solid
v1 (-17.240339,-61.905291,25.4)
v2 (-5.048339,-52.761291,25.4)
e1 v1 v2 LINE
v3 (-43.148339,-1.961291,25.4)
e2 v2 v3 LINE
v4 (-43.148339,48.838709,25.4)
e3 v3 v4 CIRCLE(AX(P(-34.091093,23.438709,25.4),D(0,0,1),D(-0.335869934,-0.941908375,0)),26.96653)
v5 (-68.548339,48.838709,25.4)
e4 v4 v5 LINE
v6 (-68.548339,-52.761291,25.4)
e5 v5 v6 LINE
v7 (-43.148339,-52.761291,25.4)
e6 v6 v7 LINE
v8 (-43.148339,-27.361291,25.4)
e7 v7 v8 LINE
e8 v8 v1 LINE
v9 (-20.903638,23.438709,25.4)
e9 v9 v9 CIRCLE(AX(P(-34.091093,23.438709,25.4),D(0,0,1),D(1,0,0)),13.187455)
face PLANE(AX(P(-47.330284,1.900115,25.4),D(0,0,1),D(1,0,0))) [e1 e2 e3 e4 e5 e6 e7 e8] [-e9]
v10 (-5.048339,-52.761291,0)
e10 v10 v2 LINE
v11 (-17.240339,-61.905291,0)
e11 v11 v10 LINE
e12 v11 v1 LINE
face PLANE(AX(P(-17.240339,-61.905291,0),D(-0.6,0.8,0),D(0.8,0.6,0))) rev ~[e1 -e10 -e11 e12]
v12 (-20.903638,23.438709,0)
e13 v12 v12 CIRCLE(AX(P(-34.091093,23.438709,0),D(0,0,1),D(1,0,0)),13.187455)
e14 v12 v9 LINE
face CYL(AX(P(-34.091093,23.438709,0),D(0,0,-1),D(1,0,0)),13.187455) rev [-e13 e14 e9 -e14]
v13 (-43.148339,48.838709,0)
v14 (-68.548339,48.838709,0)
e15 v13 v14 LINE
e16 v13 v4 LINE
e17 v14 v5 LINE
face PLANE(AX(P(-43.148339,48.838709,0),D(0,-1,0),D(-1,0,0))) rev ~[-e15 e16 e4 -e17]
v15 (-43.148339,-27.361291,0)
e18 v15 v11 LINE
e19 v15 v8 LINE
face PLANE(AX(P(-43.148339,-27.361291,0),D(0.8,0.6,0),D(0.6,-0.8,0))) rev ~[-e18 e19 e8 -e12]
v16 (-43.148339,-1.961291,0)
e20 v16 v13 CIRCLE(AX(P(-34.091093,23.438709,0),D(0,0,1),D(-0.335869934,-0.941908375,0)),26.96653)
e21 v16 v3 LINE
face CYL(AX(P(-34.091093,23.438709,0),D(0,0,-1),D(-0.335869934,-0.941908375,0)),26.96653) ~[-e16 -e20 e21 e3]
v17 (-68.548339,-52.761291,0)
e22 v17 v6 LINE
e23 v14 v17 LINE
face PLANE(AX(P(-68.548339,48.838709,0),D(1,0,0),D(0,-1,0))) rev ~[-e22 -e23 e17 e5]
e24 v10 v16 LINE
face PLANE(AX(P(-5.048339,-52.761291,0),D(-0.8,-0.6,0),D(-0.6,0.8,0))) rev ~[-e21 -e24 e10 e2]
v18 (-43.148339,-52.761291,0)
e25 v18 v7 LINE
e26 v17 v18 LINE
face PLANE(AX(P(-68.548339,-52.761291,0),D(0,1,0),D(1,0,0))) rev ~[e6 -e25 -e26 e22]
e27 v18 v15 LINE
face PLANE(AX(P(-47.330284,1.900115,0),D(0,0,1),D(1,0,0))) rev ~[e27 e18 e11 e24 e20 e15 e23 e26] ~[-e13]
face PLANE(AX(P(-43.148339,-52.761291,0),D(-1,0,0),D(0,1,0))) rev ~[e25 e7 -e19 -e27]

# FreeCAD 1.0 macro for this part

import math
import FreeCAD as App
import Part
import Sketcher

V = App.Vector
Q = App.Units.Quantity

doc = App.newDocument("Part")
body = doc.addObject("PartDesign::Body", "Body")

# Sketch on XY plane
sketch1 = doc.addObject("Sketcher::SketchObject", "Sketch")
body.addObject(sketch1)
sketch1.AttachmentSupport = (doc.XY_Plane, [""])
sketch1.MapMode = "FlatFace"
sketch1.addGeometry(Part.LineSegment(V(-68.548339, -52.761291, 0), V(-43.148339, -52.761291, 0)), False)
sketch1.addGeometry(Part.LineSegment(V(-43.148339, -52.761291, 0), V(-43.148339, -27.361291, 0)), False)
sketch1.addGeometry(Part.LineSegment(V(-43.148339, -27.361291, 0), V(-17.240339, -61.905291, 0)), False)
sketch1.addGeometry(Part.LineSegment(V(-17.240339, -61.905291, 0), V(-5.048339, -52.761291, 0)), False)
sketch1.addGeometry(Part.LineSegment(V(-5.048339, -52.761291, 0), V(-43.148339, -1.961291, 0)), False)
sketch1.addGeometry(Part.ArcOfCircle(Part.Circle(V(-34.091093, 23.438709, 0), V(0, 0, 1), 26.96653), math.radians(-109.625447), math.radians(109.625447)), False)
sketch1.addGeometry(Part.LineSegment(V(-43.148339, 48.838709, 0), V(-68.548339, 48.838709, 0)), False)
sketch1.addGeometry(Part.LineSegment(V(-68.548339, 48.838709, 0), V(-68.548339, -52.761291, 0)), False)
sketch1.addGeometry(Part.Circle(V(-34.091093, 23.438709, 0), V(0, 0, 1), 13.187455), False)
sketch1.addConstraint(Sketcher.Constraint("Coincident", 0, 2, 1, 1))
sketch1.addConstraint(Sketcher.Constraint("Coincident", 1, 2, 2, 1))
sketch1.addConstraint(Sketcher.Constraint("Coincident", 2, 2, 3, 1))
sketch1.addConstraint(Sketcher.Constraint("Coincident", 3, 2, 4, 1))
sketch1.addConstraint(Sketcher.Constraint("Coincident", 4, 2, 5, 1))
sketch1.addConstraint(Sketcher.Constraint("Coincident", 5, 2, 6, 1))
sketch1.addConstraint(Sketcher.Constraint("Coincident", 6, 2, 7, 1))
sketch1.addConstraint(Sketcher.Constraint("Coincident", 7, 2, 0, 1))
sketch1.addConstraint(Sketcher.Constraint("Horizontal", 0))
sketch1.addConstraint(Sketcher.Constraint("Vertical", 1))
sketch1.addConstraint(Sketcher.Constraint("Horizontal", 6))
sketch1.addConstraint(Sketcher.Constraint("Vertical", 7))
sketch1.addConstraint(Sketcher.Constraint("Coincident", 8, 3, 5, 3))
sketch1.addConstraint(Sketcher.Constraint("Perpendicular", 2, 3))
sketch1.addConstraint(Sketcher.Constraint("Perpendicular", 3, 4))
sketch1.addConstraint(Sketcher.Constraint("Horizontal", 0, 2, 3, 2))
sketch1.addConstraint(Sketcher.Constraint("Vertical", 1, 2, 4, 2))
sketch1.addConstraint(Sketcher.Constraint("Vertical", 4, 2, 5, 2))
sketch1.addConstraint(Sketcher.Constraint("Equal", 6, 1))
sketch1.addConstraint(Sketcher.Constraint("DistanceX", 0, 1, 0, 2, Q("1 in")))
sketch1.addConstraint(Sketcher.Constraint("DistanceY", 7, 2, 7, 1, Q("4 in")))
sketch1.addConstraint(Sketcher.Constraint("DistanceY", 0, 2, 8, 3, Q("3 in")))
sketch1.addConstraint(Sketcher.Constraint("Distance", 2, Q("1.7 in")))
sketch1.addConstraint(Sketcher.Constraint("Diameter", 8, Q("26.37491 mm")))
sketch1.addConstraint(Sketcher.Constraint("Radius", 5, Q("26.96653 mm")))
sketch1.addConstraint(Sketcher.Constraint("DistanceY", -1, 1, 5, 3, Q("23.438709 mm")))
sketch1.addConstraint(Sketcher.Constraint("DistanceX", 0, 2, -1, 1, Q("43.148339 mm")))
pad1 = doc.addObject("PartDesign::Pad", "Pad")
body.addObject(pad1)
pad1.Profile = sketch1
pad1.Length = Q("1 in")

doc.recompute()
